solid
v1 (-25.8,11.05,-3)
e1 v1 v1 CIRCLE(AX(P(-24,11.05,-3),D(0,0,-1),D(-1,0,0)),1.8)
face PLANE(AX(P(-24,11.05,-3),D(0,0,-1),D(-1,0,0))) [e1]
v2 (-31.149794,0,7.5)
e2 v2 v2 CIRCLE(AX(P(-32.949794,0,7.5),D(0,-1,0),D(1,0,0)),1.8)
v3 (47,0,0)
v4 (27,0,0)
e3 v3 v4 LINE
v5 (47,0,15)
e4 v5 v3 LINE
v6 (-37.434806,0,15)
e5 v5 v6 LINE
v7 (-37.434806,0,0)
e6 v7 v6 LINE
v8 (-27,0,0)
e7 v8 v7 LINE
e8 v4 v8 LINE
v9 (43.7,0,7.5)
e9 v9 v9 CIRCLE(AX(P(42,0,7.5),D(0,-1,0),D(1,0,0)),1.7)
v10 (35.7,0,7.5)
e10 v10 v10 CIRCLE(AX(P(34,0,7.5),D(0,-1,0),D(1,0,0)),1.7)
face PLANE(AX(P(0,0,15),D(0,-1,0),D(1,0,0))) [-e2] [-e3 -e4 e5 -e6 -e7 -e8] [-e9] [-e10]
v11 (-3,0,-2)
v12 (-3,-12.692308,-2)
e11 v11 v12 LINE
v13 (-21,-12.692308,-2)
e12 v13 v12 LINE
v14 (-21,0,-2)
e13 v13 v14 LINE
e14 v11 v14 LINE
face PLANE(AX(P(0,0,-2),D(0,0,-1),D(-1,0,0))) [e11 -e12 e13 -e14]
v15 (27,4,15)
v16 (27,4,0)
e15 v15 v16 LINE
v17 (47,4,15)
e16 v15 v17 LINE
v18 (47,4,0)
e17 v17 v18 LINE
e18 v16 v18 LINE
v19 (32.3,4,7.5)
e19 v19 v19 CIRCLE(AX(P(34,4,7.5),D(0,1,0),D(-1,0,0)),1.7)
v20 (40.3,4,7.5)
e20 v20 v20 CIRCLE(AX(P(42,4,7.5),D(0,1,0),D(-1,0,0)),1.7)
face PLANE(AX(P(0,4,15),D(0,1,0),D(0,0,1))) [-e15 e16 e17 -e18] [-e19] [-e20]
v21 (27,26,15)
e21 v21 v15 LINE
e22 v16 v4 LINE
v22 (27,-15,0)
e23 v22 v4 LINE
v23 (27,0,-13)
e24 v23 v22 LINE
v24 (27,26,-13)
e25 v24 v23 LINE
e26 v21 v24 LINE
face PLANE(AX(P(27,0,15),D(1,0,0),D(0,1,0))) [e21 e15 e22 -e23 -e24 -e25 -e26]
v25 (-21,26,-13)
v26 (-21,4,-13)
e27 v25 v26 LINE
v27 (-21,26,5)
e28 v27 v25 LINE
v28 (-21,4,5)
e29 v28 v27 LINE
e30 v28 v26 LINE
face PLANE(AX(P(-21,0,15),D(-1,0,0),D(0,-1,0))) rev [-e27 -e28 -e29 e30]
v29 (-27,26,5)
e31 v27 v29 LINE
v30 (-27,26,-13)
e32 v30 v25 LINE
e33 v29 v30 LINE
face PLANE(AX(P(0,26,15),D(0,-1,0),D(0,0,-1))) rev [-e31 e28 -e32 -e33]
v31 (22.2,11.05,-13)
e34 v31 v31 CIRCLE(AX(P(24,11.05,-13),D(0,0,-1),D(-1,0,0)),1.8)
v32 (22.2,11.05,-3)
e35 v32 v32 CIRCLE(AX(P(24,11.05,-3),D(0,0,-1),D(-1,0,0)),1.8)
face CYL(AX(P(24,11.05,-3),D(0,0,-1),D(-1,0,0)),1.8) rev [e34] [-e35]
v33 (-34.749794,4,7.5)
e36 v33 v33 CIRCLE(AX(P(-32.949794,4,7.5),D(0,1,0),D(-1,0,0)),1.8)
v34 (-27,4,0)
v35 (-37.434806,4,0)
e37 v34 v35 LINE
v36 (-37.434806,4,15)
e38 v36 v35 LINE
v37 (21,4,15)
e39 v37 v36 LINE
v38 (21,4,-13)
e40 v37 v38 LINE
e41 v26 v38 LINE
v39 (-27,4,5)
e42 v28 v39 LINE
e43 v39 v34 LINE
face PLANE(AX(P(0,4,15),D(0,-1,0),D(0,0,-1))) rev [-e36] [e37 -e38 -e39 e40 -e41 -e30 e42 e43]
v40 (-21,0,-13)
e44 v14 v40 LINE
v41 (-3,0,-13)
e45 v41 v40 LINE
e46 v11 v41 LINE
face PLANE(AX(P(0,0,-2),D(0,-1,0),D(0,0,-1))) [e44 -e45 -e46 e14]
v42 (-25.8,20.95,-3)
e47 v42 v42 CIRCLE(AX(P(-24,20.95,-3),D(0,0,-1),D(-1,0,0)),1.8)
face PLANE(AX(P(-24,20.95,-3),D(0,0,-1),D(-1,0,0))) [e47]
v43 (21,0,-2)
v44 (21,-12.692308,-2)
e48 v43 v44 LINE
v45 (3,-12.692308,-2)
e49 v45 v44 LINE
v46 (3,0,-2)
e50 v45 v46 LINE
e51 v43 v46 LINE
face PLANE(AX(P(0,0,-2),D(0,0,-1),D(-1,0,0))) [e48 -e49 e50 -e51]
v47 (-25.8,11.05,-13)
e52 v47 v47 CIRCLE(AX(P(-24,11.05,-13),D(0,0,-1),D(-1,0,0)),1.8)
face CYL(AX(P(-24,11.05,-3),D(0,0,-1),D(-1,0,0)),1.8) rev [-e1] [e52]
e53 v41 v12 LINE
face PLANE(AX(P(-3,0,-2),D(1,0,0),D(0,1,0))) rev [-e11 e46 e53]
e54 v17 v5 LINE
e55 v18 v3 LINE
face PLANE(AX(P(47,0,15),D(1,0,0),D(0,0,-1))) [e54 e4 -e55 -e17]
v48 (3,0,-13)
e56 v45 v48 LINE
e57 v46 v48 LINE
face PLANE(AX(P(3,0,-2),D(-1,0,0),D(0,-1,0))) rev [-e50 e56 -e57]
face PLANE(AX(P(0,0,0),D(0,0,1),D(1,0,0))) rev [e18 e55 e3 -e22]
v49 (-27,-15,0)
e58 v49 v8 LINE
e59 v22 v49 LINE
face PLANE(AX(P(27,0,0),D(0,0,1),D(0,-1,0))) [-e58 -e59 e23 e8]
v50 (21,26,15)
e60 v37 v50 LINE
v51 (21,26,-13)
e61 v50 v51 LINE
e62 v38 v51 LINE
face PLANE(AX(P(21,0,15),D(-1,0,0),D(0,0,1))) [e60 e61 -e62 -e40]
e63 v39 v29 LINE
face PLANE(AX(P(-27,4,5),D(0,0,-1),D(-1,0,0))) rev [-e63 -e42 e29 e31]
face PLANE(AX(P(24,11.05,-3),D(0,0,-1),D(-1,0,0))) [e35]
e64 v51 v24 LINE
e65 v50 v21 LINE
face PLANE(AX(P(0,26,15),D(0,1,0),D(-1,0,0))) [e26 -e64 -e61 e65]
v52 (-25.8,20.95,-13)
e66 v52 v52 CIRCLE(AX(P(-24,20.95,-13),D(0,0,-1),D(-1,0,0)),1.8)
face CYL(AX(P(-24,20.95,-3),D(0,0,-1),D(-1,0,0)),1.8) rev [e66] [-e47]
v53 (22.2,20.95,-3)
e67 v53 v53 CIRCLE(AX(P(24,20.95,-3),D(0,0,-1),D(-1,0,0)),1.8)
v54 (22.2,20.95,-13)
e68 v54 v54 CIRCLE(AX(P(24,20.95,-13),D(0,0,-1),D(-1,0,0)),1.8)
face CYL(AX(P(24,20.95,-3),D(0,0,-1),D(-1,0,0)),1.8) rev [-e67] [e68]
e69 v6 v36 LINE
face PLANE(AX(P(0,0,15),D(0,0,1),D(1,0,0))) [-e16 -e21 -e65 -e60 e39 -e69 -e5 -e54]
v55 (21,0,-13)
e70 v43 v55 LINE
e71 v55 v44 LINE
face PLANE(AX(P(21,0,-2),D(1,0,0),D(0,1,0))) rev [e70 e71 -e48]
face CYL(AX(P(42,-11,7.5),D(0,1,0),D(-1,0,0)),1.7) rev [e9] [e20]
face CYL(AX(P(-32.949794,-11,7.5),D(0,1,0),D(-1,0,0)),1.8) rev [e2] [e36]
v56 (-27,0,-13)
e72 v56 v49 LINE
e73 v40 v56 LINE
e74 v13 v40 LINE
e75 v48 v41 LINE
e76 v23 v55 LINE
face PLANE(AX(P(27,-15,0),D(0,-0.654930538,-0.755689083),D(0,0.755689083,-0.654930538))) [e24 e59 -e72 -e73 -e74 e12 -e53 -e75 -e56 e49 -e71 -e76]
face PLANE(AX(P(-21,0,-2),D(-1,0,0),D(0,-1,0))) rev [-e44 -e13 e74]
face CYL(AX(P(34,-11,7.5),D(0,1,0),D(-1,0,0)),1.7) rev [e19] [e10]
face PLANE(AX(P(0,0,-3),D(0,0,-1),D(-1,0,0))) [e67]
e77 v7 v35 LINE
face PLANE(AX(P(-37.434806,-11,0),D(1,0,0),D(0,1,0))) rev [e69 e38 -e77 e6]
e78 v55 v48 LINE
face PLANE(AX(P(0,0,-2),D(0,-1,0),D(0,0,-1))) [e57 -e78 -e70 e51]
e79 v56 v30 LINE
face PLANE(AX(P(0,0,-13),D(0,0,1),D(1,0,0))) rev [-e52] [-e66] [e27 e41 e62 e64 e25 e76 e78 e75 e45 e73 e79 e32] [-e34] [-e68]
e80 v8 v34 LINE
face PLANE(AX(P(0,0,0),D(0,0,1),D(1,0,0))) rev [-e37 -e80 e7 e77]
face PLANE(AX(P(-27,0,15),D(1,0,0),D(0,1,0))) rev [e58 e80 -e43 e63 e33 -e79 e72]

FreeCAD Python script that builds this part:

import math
import FreeCAD as App
import Part
import Sketcher
from FreeCAD import Vector
Q = App.Units.Quantity


def add_polygon(sketch, points):
    """Adds a closed chain of lines whose ends are joined by coincident constraints."""
    first, n = sketch.GeometryCount, len(points)
    for a, b in zip(points, points[1:] + points[:1]):
        sketch.addGeometry(Part.LineSegment(App.Vector(*a, 0), App.Vector(*b, 0)), False)
    for i in range(n):
        sketch.addConstraint(Sketcher.Constraint("Coincident", first + i, 2, first + (i + 1) % n, 1))

doc = App.newDocument("Part")
body = doc.addObject("PartDesign::Body", "Body")

sketch1 = body.newObject("Sketcher::SketchObject", "Sketch")
sketch1.AttachmentSupport = (doc.getObject("XY_Plane"), [""])
sketch1.MapMode = "FlatFace"
add_polygon(sketch1, [(-47, 0), (47, 0), (47, 4), (27, 4), (27, 26), (21, 26), (21, 4), (-21, 4), (-21, 26), (-27, 26), (-27, 4), (-47, 4)])
sketch1.addConstraint([
    Sketcher.Constraint("Horizontal", 0),
    Sketcher.Constraint("Vertical", 1),
    Sketcher.Constraint("Horizontal", 2),
    Sketcher.Constraint("Vertical", 3),
    Sketcher.Constraint("Horizontal", 4),
    Sketcher.Constraint("Vertical", 5),
    Sketcher.Constraint("Horizontal", 6),
    Sketcher.Constraint("Vertical", 7),
    Sketcher.Constraint("Horizontal", 8),
    Sketcher.Constraint("Vertical", 9),
    Sketcher.Constraint("Horizontal", 10),
    Sketcher.Constraint("Vertical", 11),
    Sketcher.Constraint("Symmetric", 0, 2, 11, 2, -1, 1),
    Sketcher.Constraint("Symmetric", 4, 2, 7, 2, -2),
    Sketcher.Constraint("Symmetric", 2, 2, 9, 2, -2),
    Sketcher.Constraint("Horizontal", 2, 2, 5, 2),
    Sketcher.Constraint("DistanceX", 0, 1, 0, 2, Q("94 mm")),
    Sketcher.Constraint("DistanceX", 2, 2, 2, 1, Q("20 mm")),
    Sketcher.Constraint("DistanceX", 4, 2, 4, 1, Q("6 mm")),
    Sketcher.Constraint("DistanceY", 1, 1, 1, 2, Q("4 mm")),
    Sketcher.Constraint("DistanceY", 3, 1, 3, 2, Q("22 mm")),
])
pad1 = body.newObject("PartDesign::Pad", "Pad")
pad1.Profile = sketch1
pad1.Length = 15

sketch2 = body.newObject("Sketcher::SketchObject", "Sketch001")
sketch2.AttachmentSupport = (doc.getObject("XY_Plane"), [""])
sketch2.MapMode = "FlatFace"
add_polygon(sketch2, [(27, 26), (27, 0), (-27, 0), (-27, 26), (-21, 26), (-21, 4), (21, 4), (21, 26)])
sketch2.addConstraint([
    Sketcher.Constraint("Vertical", 0),
    Sketcher.Constraint("Horizontal", 1),
    Sketcher.Constraint("Vertical", 2),
    Sketcher.Constraint("Horizontal", 3),
    Sketcher.Constraint("Vertical", 4),
    Sketcher.Constraint("Horizontal", 5),
    Sketcher.Constraint("Vertical", 6),
    Sketcher.Constraint("Horizontal", 7),
    Sketcher.Constraint("Symmetric", 0, 2, 1, 2, -1, 1),
    Sketcher.Constraint("Symmetric", 3, 2, 6, 2, -2),
    Sketcher.Constraint("DistanceX", 1, 2, 1, 1, Q("54 mm")),
    Sketcher.Constraint("DistanceX", 3, 1, 3, 2, Q("6 mm")),
    Sketcher.Constraint("DistanceY", 0, 2, 0, 1, Q("26 mm")),
    Sketcher.Constraint("DistanceY", 4, 2, 4, 1, Q("22 mm")),
])
pad2 = body.newObject("PartDesign::Pad", "Pad001")
pad2.Profile = sketch2
pad2.Length = 13
pad2.Reversed = True

sketch3 = body.newObject("Sketcher::SketchObject", "Sketch002")
sketch3.AttachmentSupport = (doc.getObject("XY_Plane"), [""])
sketch3.MapMode = "FlatFace"
sketch3.AttachmentOffset = App.Placement(Vector(0, 0, -13), App.Rotation())
sketch3.addGeometry([
    Part.ArcOfCircle(Part.Circle(Vector(24, 20.9, 0), Vector(0, 0, 1), 1.8), math.radians(90), math.radians(180)),
    Part.ArcOfCircle(Part.Circle(Vector(24, 20.9, 0), Vector(0, 0, 1), 1.8), math.radians(-90), math.radians(90)),
    Part.ArcOfCircle(Part.Circle(Vector(24, 20.9, 0), Vector(0, 0, 1), 1.8), math.radians(180), math.radians(270)),
    Part.Circle(Vector(24, 11.1, 0), Vector(0, 0, 1), 1.8),
    Part.Circle(Vector(-24, 20.9, 0), Vector(0, 0, 1), 1.8),
    Part.Circle(Vector(-24, 11.1, 0), Vector(0, 0, 1), 1.8),
], False)
sketch3.addConstraint([
    Sketcher.Constraint("Tangent", 0, 1, 1, 2),
    Sketcher.Constraint("Tangent", 1, 1, 2, 2),
    Sketcher.Constraint("Tangent", 2, 1, 0, 2),
    Sketcher.Constraint("Equal", 2, 3),
    Sketcher.Constraint("Equal", 3, 4),
    Sketcher.Constraint("Equal", 4, 5),
    Sketcher.Constraint("Symmetric", 0, 3, 4, 3, -2),
    Sketcher.Constraint("Symmetric", 3, 3, 5, 3, -2),
    Sketcher.Constraint("Horizontal", 4, 3, 2, 1),
    Sketcher.Constraint("Vertical", 2, 3, 3, 3),
    Sketcher.Constraint("Vertical", 3, 3, 0, 1),
    Sketcher.Constraint("Vertical", 0, 1, 1, 1),
    Sketcher.Constraint("Diameter", 3, Q("3.6 mm")),
    Sketcher.Constraint("DistanceX", -1, 1, 0, 3, Q("24 mm")),
    Sketcher.Constraint("DistanceY", 3, 3, 0, 3, Q("9.9 mm")),
    Sketcher.Constraint("DistanceY", -1, 1, 0, 3, Q("20.95 mm")),
])
pocket1 = body.newObject("PartDesign::Pocket", "Pocket")
pocket1.Profile = sketch3
pocket1.Length = 10
pocket1.Reversed = True

sketch4 = body.newObject("Sketcher::SketchObject", "Sketch003")
sketch4.AttachmentSupport = (doc.getObject("XZ_Plane"), [""])
sketch4.MapMode = "FlatFace"
sketch4.AttachmentOffset = App.Placement(Vector(0, 0, -4), App.Rotation())
add_polygon(sketch4, [(-47, 0), (-47, 15), (-37.4, 15), (-37.4, 0)])
sketch4.addGeometry(Part.Circle(Vector(-32.9, 7.5, 0), Vector(0, 0, 1), 1.8), False)
sketch4.addGeometry(Part.Circle(Vector(42, 7.5, 0), Vector(0, 0, 1), 1.7), False)
sketch4.addGeometry(Part.Circle(Vector(34, 7.5, 0), Vector(0, 0, 1), 1.7), False)
sketch4.addConstraint([
    Sketcher.Constraint("Vertical", 0),
    Sketcher.Constraint("Horizontal", 1),
    Sketcher.Constraint("Vertical", 2),
    Sketcher.Constraint("Horizontal", 3),
    Sketcher.Constraint("Equal", 5, 6),
    Sketcher.Constraint("PointOnObject", 2, 2, -1),
    Sketcher.Constraint("Horizontal", 4, 3, 5, 3),
    Sketcher.Constraint("Horizontal", 5, 3, 6, 3),
    Sketcher.Constraint("Diameter", 4, Q("3.6 mm")),
    Sketcher.Constraint("Diameter", 5, Q("3.4 mm")),
    Sketcher.Constraint("DistanceY", 0, 1, 0, 2, Q("15 mm")),
    Sketcher.Constraint("DistanceX", -1, 1, 5, 3, Q("42 mm")),
    Sketcher.Constraint("DistanceX", -1, 1, 6, 3, Q("34 mm")),
    Sketcher.Constraint("DistanceX", 0, 2, -1, 1, Q("47 mm")),
    Sketcher.Constraint("DistanceY", -1, 1, 4, 3, Q("7.5 mm")),
    Sketcher.Constraint("DistanceX", 1, 1, 1, 2, Q("9.565194 mm")),
    Sketcher.Constraint("DistanceX", 1, 2, 4, 3, Q("4.485011 mm")),
])
pocket2 = body.newObject("PartDesign::Pocket", "Pocket001")
pocket2.Profile = sketch4
pocket2.Length = 15
pocket2.Reversed = True

sketch5 = body.newObject("Sketcher::SketchObject", "Sketch004")
sketch5.AttachmentSupport = (doc.getObject("XZ_Plane"), [""])
sketch5.MapMode = "FlatFace"
sketch5.AttachmentOffset = App.Placement(Vector(0, 0, -26), App.Rotation())
add_polygon(sketch5, [(-27, 5), (-27, 15), (-21, 15), (-21, 5)])
sketch5.addConstraint([
    Sketcher.Constraint("Vertical", 0),
    Sketcher.Constraint("Horizontal", 1),
    Sketcher.Constraint("Vertical", 2),
    Sketcher.Constraint("Horizontal", 3),
    Sketcher.Constraint("DistanceX", 1, 1, 1, 2, Q("6 mm")),
    Sketcher.Constraint("DistanceY", 0, 1, 0, 2, Q("10 mm")),
    Sketcher.Constraint("DistanceX", 0, 2, -1, 1, Q("27 mm")),
    Sketcher.Constraint("DistanceY", -1, 1, 0, 2, Q("15 mm")),
])
pocket3 = body.newObject("PartDesign::Pocket", "Pocket002")
pocket3.Profile = sketch5
pocket3.Length = 22
pocket3.Reversed = True

sketch6 = body.newObject("Sketcher::SketchObject", "Sketch005")
sketch6.AttachmentSupport = (doc.getObject("YZ_Plane"), [""])
sketch6.MapMode = "FlatFace"
sketch6.AttachmentOffset = App.Placement(Vector(0, 0, -27), App.Rotation())
add_polygon(sketch6, [(0, 0), (0, -13), (-15, 0)])
sketch6.addConstraint([
    Sketcher.Constraint("Vertical", 0),
    Sketcher.Constraint("Horizontal", 2),
    Sketcher.Constraint("Coincident", 2, 2, -1, 1),
    Sketcher.Constraint("DistanceX", 2, 1, 2, 2, Q("15 mm")),
    Sketcher.Constraint("DistanceY", 0, 2, 0, 1, Q("13 mm")),
])
pad3 = body.newObject("PartDesign::Pad", "Pad002")
pad3.Profile = sketch6
pad3.Length = 54

sketch7 = body.newObject("Sketcher::SketchObject", "Sketch006")
sketch7.AttachmentSupport = (doc.getObject("XY_Plane"), [""])
sketch7.MapMode = "FlatFace"
sketch7.AttachmentOffset = App.Placement(Vector(0, 0, -13), App.Rotation())
add_polygon(sketch7, [(21, 0), (21, -15), (3, -15), (3, 0)])
add_polygon(sketch7, [(-3, 0), (-3, -15), (-21, -15), (-21, 0)])
sketch7.addConstraint([
    Sketcher.Constraint("Vertical", 0),
    Sketcher.Constraint("Horizontal", 1),
    Sketcher.Constraint("Vertical", 2),
    Sketcher.Constraint("Horizontal", 3),
    Sketcher.Constraint("Vertical", 4),
    Sketcher.Constraint("Horizontal", 5),
    Sketcher.Constraint("Vertical", 6),
    Sketcher.Constraint("Horizontal", 7),
    Sketcher.Constraint("Symmetric", 3, 2, 6, 2, -1, 1),
    Sketcher.Constraint("Symmetric", 1, 2, 4, 2, -2),
    Sketcher.Constraint("PointOnObject", 2, 2, -1),
    Sketcher.Constraint("DistanceX", 1, 2, 1, 1, Q("18 mm")),
    Sketcher.Constraint("DistanceY", 0, 2, 0, 1, Q("15 mm")),
    Sketcher.Constraint("DistanceX", -1, 1, 0, 2, Q("21 mm")),
])
pocket4 = body.newObject("PartDesign::Pocket", "Pocket003")
pocket4.Profile = sketch7
pocket4.Length = 11
pocket4.Reversed = True

doc.recompute()
